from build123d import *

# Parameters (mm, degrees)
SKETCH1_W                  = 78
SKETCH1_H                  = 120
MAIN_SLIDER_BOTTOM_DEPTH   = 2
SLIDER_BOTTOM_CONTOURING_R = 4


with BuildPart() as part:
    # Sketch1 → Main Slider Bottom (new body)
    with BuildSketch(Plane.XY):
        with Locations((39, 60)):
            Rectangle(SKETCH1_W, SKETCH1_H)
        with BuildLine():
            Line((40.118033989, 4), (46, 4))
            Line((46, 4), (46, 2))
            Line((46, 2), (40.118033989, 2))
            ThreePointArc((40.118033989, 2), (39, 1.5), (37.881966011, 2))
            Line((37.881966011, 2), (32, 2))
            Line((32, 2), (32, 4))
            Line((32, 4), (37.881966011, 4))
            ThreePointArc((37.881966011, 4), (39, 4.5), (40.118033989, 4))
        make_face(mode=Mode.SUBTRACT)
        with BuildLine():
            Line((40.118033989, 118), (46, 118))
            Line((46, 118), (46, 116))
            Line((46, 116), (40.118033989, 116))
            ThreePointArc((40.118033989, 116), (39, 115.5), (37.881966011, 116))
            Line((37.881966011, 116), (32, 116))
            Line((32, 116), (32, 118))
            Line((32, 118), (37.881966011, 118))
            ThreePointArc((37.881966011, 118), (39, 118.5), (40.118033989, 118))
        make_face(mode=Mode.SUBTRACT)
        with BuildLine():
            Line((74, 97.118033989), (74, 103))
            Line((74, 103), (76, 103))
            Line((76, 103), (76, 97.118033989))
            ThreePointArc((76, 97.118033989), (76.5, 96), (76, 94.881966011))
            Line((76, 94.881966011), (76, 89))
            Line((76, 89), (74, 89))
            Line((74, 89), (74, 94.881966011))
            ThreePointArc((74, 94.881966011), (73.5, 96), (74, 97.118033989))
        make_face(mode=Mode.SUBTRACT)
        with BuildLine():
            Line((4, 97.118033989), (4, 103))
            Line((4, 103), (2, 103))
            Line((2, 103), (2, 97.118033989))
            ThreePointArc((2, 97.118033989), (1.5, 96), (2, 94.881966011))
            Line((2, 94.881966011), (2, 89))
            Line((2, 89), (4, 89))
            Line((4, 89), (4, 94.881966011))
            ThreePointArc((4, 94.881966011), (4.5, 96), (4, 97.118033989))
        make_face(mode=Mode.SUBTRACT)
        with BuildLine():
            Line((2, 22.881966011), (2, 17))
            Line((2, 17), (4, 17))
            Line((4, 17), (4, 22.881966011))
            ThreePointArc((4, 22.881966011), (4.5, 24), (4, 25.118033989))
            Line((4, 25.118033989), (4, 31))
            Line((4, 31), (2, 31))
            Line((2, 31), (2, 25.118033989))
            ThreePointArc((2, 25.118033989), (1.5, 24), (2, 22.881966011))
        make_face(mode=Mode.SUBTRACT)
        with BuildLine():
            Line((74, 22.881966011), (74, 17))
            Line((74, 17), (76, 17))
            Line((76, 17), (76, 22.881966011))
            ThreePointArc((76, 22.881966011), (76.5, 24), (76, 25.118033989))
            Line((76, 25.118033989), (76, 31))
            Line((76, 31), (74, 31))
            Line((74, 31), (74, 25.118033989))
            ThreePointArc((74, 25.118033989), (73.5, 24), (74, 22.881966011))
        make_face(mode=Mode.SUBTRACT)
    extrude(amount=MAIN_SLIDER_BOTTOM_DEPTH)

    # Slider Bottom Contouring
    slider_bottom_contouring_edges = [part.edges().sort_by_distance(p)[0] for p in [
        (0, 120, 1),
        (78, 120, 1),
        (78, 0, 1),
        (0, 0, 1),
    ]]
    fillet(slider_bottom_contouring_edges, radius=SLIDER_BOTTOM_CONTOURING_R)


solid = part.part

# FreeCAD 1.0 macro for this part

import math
import FreeCAD as App
import Part
import Sketcher

V = App.Vector
Q = App.Units.Quantity


def edges_at(feature, points):
    """Names of the edges that pass closest to the given points."""
    edges = feature.Shape.Edges
    near = lambda p: min(range(len(edges)), key=lambda i: edges[i].distToShape(Part.Vertex(*p))[0])
    return sorted({f"Edge{near(p) + 1}" for p in points})


def add_polygon(sketch, points):
    """Adds a closed chain of lines whose ends are joined by coincident constraints."""
    first, n = sketch.GeometryCount, len(points)
    for a, b in zip(points, points[1:] + points[:1]):
        sketch.addGeometry(Part.LineSegment(App.Vector(*a, 0), App.Vector(*b, 0)), False)
    for i in range(n):
        sketch.addConstraint(Sketcher.Constraint("Coincident", first + i, 2, first + (i + 1) % n, 1))

doc = App.newDocument("Part")
body = doc.addObject("PartDesign::Body", "Body")

sketch1 = body.newObject("Sketcher::SketchObject", "Sketch")
sketch1.AttachmentSupport = (doc.getObject("XY_Plane"), [""])
sketch1.MapMode = "FlatFace"
add_polygon(sketch1, [(0, 120), (0, 0), (78, 0), (78, 120)])
sketch1.addGeometry(Part.LineSegment(V(2, 17, 0), V(2, 22.9, 0)), False)
sketch1.addGeometry(Part.ArcOfCircle(Part.Circle(V(3, 24, 0), V(0, 0, 1), 1.5), math.radians(132), math.radians(228)), False)
sketch1.addGeometry(Part.LineSegment(V(2, 25.1, 0), V(2, 31, 0)), False)
sketch1.addGeometry(Part.LineSegment(V(2, 31, 0), V(4, 31, 0)), False)
sketch1.addGeometry(Part.LineSegment(V(4, 31, 0), V(4, 25.1, 0)), False)
sketch1.addGeometry(Part.ArcOfCircle(Part.Circle(V(3, 24, 0), V(0, 0, 1), 1.5), math.radians(-48), math.radians(48)), False)
sketch1.addGeometry(Part.LineSegment(V(4, 22.9, 0), V(4, 17, 0)), False)
sketch1.addGeometry(Part.LineSegment(V(4, 17, 0), V(2, 17, 0)), False)
sketch1.addGeometry(Part.ArcOfCircle(Part.Circle(V(39, 3, 0), V(0, 0, 1), 1.5), math.radians(42), math.radians(138)), False)
sketch1.addGeometry(Part.LineSegment(V(40.1, 4, 0), V(46, 4, 0)), False)
sketch1.addGeometry(Part.LineSegment(V(46, 4, 0), V(46, 2, 0)), False)
sketch1.addGeometry(Part.LineSegment(V(46, 2, 0), V(40.1, 2, 0)), False)
sketch1.addGeometry(Part.ArcOfCircle(Part.Circle(V(39, 3, 0), V(0, 0, 1), 1.5), math.radians(-138), math.radians(-42)), False)
sketch1.addGeometry(Part.LineSegment(V(37.9, 2, 0), V(32, 2, 0)), False)
sketch1.addGeometry(Part.LineSegment(V(32, 2, 0), V(32, 4, 0)), False)
sketch1.addGeometry(Part.LineSegment(V(32, 4, 0), V(37.9, 4, 0)), False)
sketch1.addGeometry(Part.LineSegment(V(74, 17, 0), V(74, 22.9, 0)), False)
sketch1.addGeometry(Part.ArcOfCircle(Part.Circle(V(75, 24, 0), V(0, 0, 1), 1.5), math.radians(132), math.radians(228)), False)
sketch1.addGeometry(Part.LineSegment(V(74, 25.1, 0), V(74, 31, 0)), False)
sketch1.addGeometry(Part.LineSegment(V(74, 31, 0), V(76, 31, 0)), False)
sketch1.addGeometry(Part.LineSegment(V(76, 31, 0), V(76, 25.1, 0)), False)
sketch1.addGeometry(Part.ArcOfCircle(Part.Circle(V(75, 24, 0), V(0, 0, 1), 1.5), math.radians(-48), math.radians(48)), False)
sketch1.addGeometry(Part.LineSegment(V(76, 22.9, 0), V(76, 17, 0)), False)
sketch1.addGeometry(Part.LineSegment(V(76, 17, 0), V(74, 17, 0)), False)
sketch1.addGeometry(Part.LineSegment(V(4, 103, 0), V(4, 97.1, 0)), False)
sketch1.addGeometry(Part.ArcOfCircle(Part.Circle(V(3, 96, 0), V(0, 0, 1), 1.5), math.radians(-48), math.radians(48)), False)
sketch1.addGeometry(Part.LineSegment(V(4, 94.9, 0), V(4, 89, 0)), False)
sketch1.addGeometry(Part.LineSegment(V(4, 89, 0), V(2, 89, 0)), False)
sketch1.addGeometry(Part.LineSegment(V(2, 89, 0), V(2, 94.9, 0)), False)
sketch1.addGeometry(Part.ArcOfCircle(Part.Circle(V(3, 96, 0), V(0, 0, 1), 1.5), math.radians(132), math.radians(228)), False)
sketch1.addGeometry(Part.LineSegment(V(2, 97.1, 0), V(2, 103, 0)), False)
sketch1.addGeometry(Part.LineSegment(V(2, 103, 0), V(4, 103, 0)), False)
sketch1.addGeometry(Part.ArcOfCircle(Part.Circle(V(39, 117, 0), V(0, 0, 1), 1.5), math.radians(42), math.radians(138)), False)
sketch1.addGeometry(Part.LineSegment(V(40.1, 118, 0), V(46, 118, 0)), False)
sketch1.addGeometry(Part.LineSegment(V(46, 118, 0), V(46, 116, 0)), False)
sketch1.addGeometry(Part.LineSegment(V(46, 116, 0), V(40.1, 116, 0)), False)
sketch1.addGeometry(Part.ArcOfCircle(Part.Circle(V(39, 117, 0), V(0, 0, 1), 1.5), math.radians(-138), math.radians(-42)), False)
sketch1.addGeometry(Part.LineSegment(V(37.9, 116, 0), V(32, 116, 0)), False)
sketch1.addGeometry(Part.LineSegment(V(32, 116, 0), V(32, 118, 0)), False)
sketch1.addGeometry(Part.LineSegment(V(32, 118, 0), V(37.9, 118, 0)), False)
sketch1.addGeometry(Part.ArcOfCircle(Part.Circle(V(75, 96, 0), V(0, 0, 1), 1.5), math.radians(132), math.radians(228)), False)
sketch1.addGeometry(Part.LineSegment(V(74, 97.1, 0), V(74, 103, 0)), False)
sketch1.addGeometry(Part.LineSegment(V(74, 103, 0), V(76, 103, 0)), False)
sketch1.addGeometry(Part.LineSegment(V(76, 103, 0), V(76, 97.1, 0)), False)
sketch1.addGeometry(Part.ArcOfCircle(Part.Circle(V(75, 96, 0), V(0, 0, 1), 1.5), math.radians(-48), math.radians(48)), False)
sketch1.addGeometry(Part.LineSegment(V(76, 94.9, 0), V(76, 89, 0)), False)
sketch1.addGeometry(Part.LineSegment(V(76, 89, 0), V(74, 89, 0)), False)
sketch1.addGeometry(Part.LineSegment(V(74, 89, 0), V(74, 94.9, 0)), False)
sketch1.addConstraint(Sketcher.Constraint("Coincident", 4, 2, 5, 2))
sketch1.addConstraint(Sketcher.Constraint("Coincident", 5, 1, 6, 1))
sketch1.addConstraint(Sketcher.Constraint("Coincident", 6, 2, 7, 1))
sketch1.addConstraint(Sketcher.Constraint("Coincident", 7, 2, 8, 1))
sketch1.addConstraint(Sketcher.Constraint("Coincident", 8, 2, 9, 2))
sketch1.addConstraint(Sketcher.Constraint("Coincident", 9, 1, 10, 1))
sketch1.addConstraint(Sketcher.Constraint("Coincident", 10, 2, 11, 1))
sketch1.addConstraint(Sketcher.Constraint("Coincident", 11, 2, 4, 1))
sketch1.addConstraint(Sketcher.Constraint("Coincident", 12, 1, 13, 1))
sketch1.addConstraint(Sketcher.Constraint("Coincident", 13, 2, 14, 1))
sketch1.addConstraint(Sketcher.Constraint("Coincident", 14, 2, 15, 1))
sketch1.addConstraint(Sketcher.Constraint("Coincident", 15, 2, 16, 2))
sketch1.addConstraint(Sketcher.Constraint("Coincident", 16, 1, 17, 1))
sketch1.addConstraint(Sketcher.Constraint("Coincident", 17, 2, 18, 1))
sketch1.addConstraint(Sketcher.Constraint("Coincident", 18, 2, 19, 1))
sketch1.addConstraint(Sketcher.Constraint("Coincident", 19, 2, 12, 2))
sketch1.addConstraint(Sketcher.Constraint("Coincident", 20, 2, 21, 2))
sketch1.addConstraint(Sketcher.Constraint("Coincident", 21, 1, 22, 1))
sketch1.addConstraint(Sketcher.Constraint("Coincident", 22, 2, 23, 1))
sketch1.addConstraint(Sketcher.Constraint("Coincident", 23, 2, 24, 1))
sketch1.addConstraint(Sketcher.Constraint("Coincident", 24, 2, 25, 2))
sketch1.addConstraint(Sketcher.Constraint("Coincident", 25, 1, 26, 1))
sketch1.addConstraint(Sketcher.Constraint("Coincident", 26, 2, 27, 1))
sketch1.addConstraint(Sketcher.Constraint("Coincident", 27, 2, 20, 1))
sketch1.addConstraint(Sketcher.Constraint("Coincident", 28, 2, 29, 2))
sketch1.addConstraint(Sketcher.Constraint("Coincident", 29, 1, 30, 1))
sketch1.addConstraint(Sketcher.Constraint("Coincident", 30, 2, 31, 1))
sketch1.addConstraint(Sketcher.Constraint("Coincident", 31, 2, 32, 1))
sketch1.addConstraint(Sketcher.Constraint("Coincident", 32, 2, 33, 2))
sketch1.addConstraint(Sketcher.Constraint("Coincident", 33, 1, 34, 1))
sketch1.addConstraint(Sketcher.Constraint("Coincident", 34, 2, 35, 1))
sketch1.addConstraint(Sketcher.Constraint("Coincident", 35, 2, 28, 1))
sketch1.addConstraint(Sketcher.Constraint("Coincident", 36, 1, 37, 1))
sketch1.addConstraint(Sketcher.Constraint("Coincident", 37, 2, 38, 1))
sketch1.addConstraint(Sketcher.Constraint("Coincident", 38, 2, 39, 1))
sketch1.addConstraint(Sketcher.Constraint("Coincident", 39, 2, 40, 2))
sketch1.addConstraint(Sketcher.Constraint("Coincident", 40, 1, 41, 1))
sketch1.addConstraint(Sketcher.Constraint("Coincident", 41, 2, 42, 1))
sketch1.addConstraint(Sketcher.Constraint("Coincident", 42, 2, 43, 1))
sketch1.addConstraint(Sketcher.Constraint("Coincident", 43, 2, 36, 2))
sketch1.addConstraint(Sketcher.Constraint("Coincident", 44, 1, 45, 1))
sketch1.addConstraint(Sketcher.Constraint("Coincident", 45, 2, 46, 1))
sketch1.addConstraint(Sketcher.Constraint("Coincident", 46, 2, 47, 1))
sketch1.addConstraint(Sketcher.Constraint("Coincident", 47, 2, 48, 2))
sketch1.addConstraint(Sketcher.Constraint("Coincident", 48, 1, 49, 1))
sketch1.addConstraint(Sketcher.Constraint("Coincident", 49, 2, 50, 1))
sketch1.addConstraint(Sketcher.Constraint("Coincident", 50, 2, 51, 1))
sketch1.addConstraint(Sketcher.Constraint("Coincident", 51, 2, 44, 2))
sketch1.addConstraint(Sketcher.Constraint("Vertical", 0))
sketch1.addConstraint(Sketcher.Constraint("Horizontal", 1))
sketch1.addConstraint(Sketcher.Constraint("Vertical", 2))
sketch1.addConstraint(Sketcher.Constraint("Horizontal", 3))
sketch1.addConstraint(Sketcher.Constraint("Vertical", 4))
sketch1.addConstraint(Sketcher.Constraint("Vertical", 6))
sketch1.addConstraint(Sketcher.Constraint("Horizontal", 7))
sketch1.addConstraint(Sketcher.Constraint("Vertical", 8))
sketch1.addConstraint(Sketcher.Constraint("Vertical", 10))
sketch1.addConstraint(Sketcher.Constraint("Horizontal", 11))
sketch1.addConstraint(Sketcher.Constraint("Horizontal", 13))
sketch1.addConstraint(Sketcher.Constraint("Vertical", 14))
sketch1.addConstraint(Sketcher.Constraint("Horizontal", 15))
sketch1.addConstraint(Sketcher.Constraint("Horizontal", 17))
sketch1.addConstraint(Sketcher.Constraint("Vertical", 18))
sketch1.addConstraint(Sketcher.Constraint("Horizontal", 19))
sketch1.addConstraint(Sketcher.Constraint("Vertical", 20))
sketch1.addConstraint(Sketcher.Constraint("Vertical", 22))
sketch1.addConstraint(Sketcher.Constraint("Horizontal", 23))
sketch1.addConstraint(Sketcher.Constraint("Vertical", 24))
sketch1.addConstraint(Sketcher.Constraint("Vertical", 26))
sketch1.addConstraint(Sketcher.Constraint("Horizontal", 27))
sketch1.addConstraint(Sketcher.Constraint("Vertical", 28))
sketch1.addConstraint(Sketcher.Constraint("Vertical", 30))
sketch1.addConstraint(Sketcher.Constraint("Horizontal", 31))
sketch1.addConstraint(Sketcher.Constraint("Vertical", 32))
sketch1.addConstraint(Sketcher.Constraint("Vertical", 34))
sketch1.addConstraint(Sketcher.Constraint("Horizontal", 35))
sketch1.addConstraint(Sketcher.Constraint("Horizontal", 37))
sketch1.addConstraint(Sketcher.Constraint("Vertical", 38))
sketch1.addConstraint(Sketcher.Constraint("Horizontal", 39))
sketch1.addConstraint(Sketcher.Constraint("Horizontal", 41))
sketch1.addConstraint(Sketcher.Constraint("Vertical", 42))
sketch1.addConstraint(Sketcher.Constraint("Horizontal", 43))
sketch1.addConstraint(Sketcher.Constraint("Vertical", 45))
sketch1.addConstraint(Sketcher.Constraint("Horizontal", 46))
sketch1.addConstraint(Sketcher.Constraint("Vertical", 47))
sketch1.addConstraint(Sketcher.Constraint("Vertical", 49))
sketch1.addConstraint(Sketcher.Constraint("Horizontal", 50))
sketch1.addConstraint(Sketcher.Constraint("Vertical", 51))
sketch1.addConstraint(Sketcher.Constraint("Coincident", 0, 2, -1, 1))
sketch1.addConstraint(Sketcher.Constraint("Coincident", 9, 3, 5, 3))
sketch1.addConstraint(Sketcher.Constraint("Coincident", 16, 3, 12, 3))
sketch1.addConstraint(Sketcher.Constraint("Coincident", 25, 3, 21, 3))
sketch1.addConstraint(Sketcher.Constraint("Coincident", 33, 3, 29, 3))
sketch1.addConstraint(Sketcher.Constraint("Coincident", 40, 3, 36, 3))
sketch1.addConstraint(Sketcher.Constraint("Coincident", 48, 3, 44, 3))
sketch1.addConstraint(Sketcher.Constraint("Equal", 5, 9))
sketch1.addConstraint(Sketcher.Constraint("Equal", 9, 12))
sketch1.addConstraint(Sketcher.Constraint("Equal", 12, 16))
sketch1.addConstraint(Sketcher.Constraint("Equal", 16, 21))
sketch1.addConstraint(Sketcher.Constraint("Equal", 21, 25))
sketch1.addConstraint(Sketcher.Constraint("Equal", 25, 29))
sketch1.addConstraint(Sketcher.Constraint("Equal", 29, 33))
sketch1.addConstraint(Sketcher.Constraint("Equal", 33, 36))
sketch1.addConstraint(Sketcher.Constraint("Equal", 36, 40))
sketch1.addConstraint(Sketcher.Constraint("Equal", 40, 44))
sketch1.addConstraint(Sketcher.Constraint("Equal", 44, 48))
sketch1.addConstraint(Sketcher.Constraint("Horizontal", 9, 3, 21, 3))
sketch1.addConstraint(Sketcher.Constraint("Horizontal", 33, 3, 44, 3))
sketch1.addConstraint(Sketcher.Constraint("Horizontal", 5, 1, 8, 2))
sketch1.addConstraint(Sketcher.Constraint("Horizontal", 4, 2, 9, 1))
sketch1.addConstraint(Sketcher.Constraint("Horizontal", 15, 2, 16, 1))
sketch1.addConstraint(Sketcher.Constraint("Horizontal", 13, 2, 18, 2))
sketch1.addConstraint(Sketcher.Constraint("Horizontal", 9, 1, 20, 2))
sketch1.addConstraint(Sketcher.Constraint("Horizontal", 8, 2, 21, 1))
sketch1.addConstraint(Sketcher.Constraint("Horizontal", 7, 2, 22, 2))
sketch1.addConstraint(Sketcher.Constraint("Horizontal", 21, 1, 24, 2))
sketch1.addConstraint(Sketcher.Constraint("Horizontal", 20, 2, 25, 1))
sketch1.addConstraint(Sketcher.Constraint("Horizontal", 11, 2, 26, 2))
sketch1.addConstraint(Sketcher.Constraint("Horizontal", 29, 1, 32, 2))
sketch1.addConstraint(Sketcher.Constraint("Horizontal", 28, 2, 33, 1))
sketch1.addConstraint(Sketcher.Constraint("Horizontal", 39, 2, 40, 1))
sketch1.addConstraint(Sketcher.Constraint("Horizontal", 37, 2, 42, 2))
sketch1.addConstraint(Sketcher.Constraint("Horizontal", 33, 1, 44, 1))
sketch1.addConstraint(Sketcher.Constraint("Horizontal", 35, 2, 45, 2))
sketch1.addConstraint(Sketcher.Constraint("Horizontal", 44, 1, 47, 2))
sketch1.addConstraint(Sketcher.Constraint("Horizontal", 32, 2, 48, 1))
sketch1.addConstraint(Sketcher.Constraint("Horizontal", 31, 2, 49, 2))
sketch1.addConstraint(Sketcher.Constraint("Horizontal", 48, 1, 51, 2))
sketch1.addConstraint(Sketcher.Constraint("Vertical", 9, 3, 29, 3))
sketch1.addConstraint(Sketcher.Constraint("Vertical", 16, 3, 36, 3))
sketch1.addConstraint(Sketcher.Constraint("Vertical", 25, 3, 44, 3))
sketch1.addConstraint(Sketcher.Constraint("Vertical", 4, 2, 5, 1))
sketch1.addConstraint(Sketcher.Constraint("Vertical", 12, 1, 15, 2))
sketch1.addConstraint(Sketcher.Constraint("Vertical", 10, 2, 28, 2))
sketch1.addConstraint(Sketcher.Constraint("Vertical", 28, 2, 29, 1))
sketch1.addConstraint(Sketcher.Constraint("Vertical", 15, 2, 36, 1))
sketch1.addConstraint(Sketcher.Constraint("Vertical", 14, 2, 37, 2))
sketch1.addConstraint(Sketcher.Constraint("Vertical", 36, 1, 39, 2))
sketch1.addConstraint(Sketcher.Constraint("Vertical", 18, 2, 41, 2))
sketch1.addConstraint(Sketcher.Constraint("Equal", 15, 17))
sketch1.addConstraint(Sketcher.Constraint("Equal", 43, 4))
sketch1.addConstraint(Sketcher.Constraint("Equal", 4, 6))
sketch1.addConstraint(Sketcher.Constraint("Equal", 50, 14))
sketch1.addConstraint(Sketcher.Constraint("Equal", 26, 28))
sketch1.addConstraint(Sketcher.Constraint("Equal", 28, 30))
sketch1.addConstraint(Sketcher.Constraint("Radius", 5, Q("1.5 mm")))
sketch1.addConstraint(Sketcher.Constraint("DistanceX", 1, 1, 1, 2, Q("78 mm")))
sketch1.addConstraint(Sketcher.Constraint("DistanceX", 7, 1, 7, 2, Q("2 mm")))
sketch1.addConstraint(Sketcher.Constraint("DistanceY", 0, 2, 0, 1, Q("120 mm")))
sketch1.addConstraint(Sketcher.Constraint("DistanceX", -1, 1, 5, 3, Q("3 mm")))
sketch1.addConstraint(Sketcher.Constraint("DistanceY", -1, 1, 5, 3, Q("24 mm")))
sketch1.addConstraint(Sketcher.Constraint("DistanceX", -1, 1, 12, 3, Q("39 mm")))
sketch1.addConstraint(Sketcher.Constraint("DistanceY", -1, 1, 12, 3, Q("3 mm")))
sketch1.addConstraint(Sketcher.Constraint("DistanceX", -1, 1, 21, 3, Q("75 mm")))
sketch1.addConstraint(Sketcher.Constraint("DistanceY", -1, 1, 29, 3, Q("96 mm")))
sketch1.addConstraint(Sketcher.Constraint("DistanceY", -1, 1, 36, 3, Q("117 mm")))
sketch1.addConstraint(Sketcher.Constraint("DistanceY", -1, 1, 6, 2, Q("31 mm")))
pad1 = body.newObject("PartDesign::Pad", "Pad")
pad1.Profile = sketch1
pad1.Length = 2
doc.recompute()

fillet = body.newObject("PartDesign::Fillet", "Fillet")
fillet.Base = (pad1, edges_at(pad1, [
    (0, 120, 1),
    (78, 120, 1),
    (78, 0, 1),
    (0, 0, 1),
]))
fillet.Radius = 4

doc.recompute()
